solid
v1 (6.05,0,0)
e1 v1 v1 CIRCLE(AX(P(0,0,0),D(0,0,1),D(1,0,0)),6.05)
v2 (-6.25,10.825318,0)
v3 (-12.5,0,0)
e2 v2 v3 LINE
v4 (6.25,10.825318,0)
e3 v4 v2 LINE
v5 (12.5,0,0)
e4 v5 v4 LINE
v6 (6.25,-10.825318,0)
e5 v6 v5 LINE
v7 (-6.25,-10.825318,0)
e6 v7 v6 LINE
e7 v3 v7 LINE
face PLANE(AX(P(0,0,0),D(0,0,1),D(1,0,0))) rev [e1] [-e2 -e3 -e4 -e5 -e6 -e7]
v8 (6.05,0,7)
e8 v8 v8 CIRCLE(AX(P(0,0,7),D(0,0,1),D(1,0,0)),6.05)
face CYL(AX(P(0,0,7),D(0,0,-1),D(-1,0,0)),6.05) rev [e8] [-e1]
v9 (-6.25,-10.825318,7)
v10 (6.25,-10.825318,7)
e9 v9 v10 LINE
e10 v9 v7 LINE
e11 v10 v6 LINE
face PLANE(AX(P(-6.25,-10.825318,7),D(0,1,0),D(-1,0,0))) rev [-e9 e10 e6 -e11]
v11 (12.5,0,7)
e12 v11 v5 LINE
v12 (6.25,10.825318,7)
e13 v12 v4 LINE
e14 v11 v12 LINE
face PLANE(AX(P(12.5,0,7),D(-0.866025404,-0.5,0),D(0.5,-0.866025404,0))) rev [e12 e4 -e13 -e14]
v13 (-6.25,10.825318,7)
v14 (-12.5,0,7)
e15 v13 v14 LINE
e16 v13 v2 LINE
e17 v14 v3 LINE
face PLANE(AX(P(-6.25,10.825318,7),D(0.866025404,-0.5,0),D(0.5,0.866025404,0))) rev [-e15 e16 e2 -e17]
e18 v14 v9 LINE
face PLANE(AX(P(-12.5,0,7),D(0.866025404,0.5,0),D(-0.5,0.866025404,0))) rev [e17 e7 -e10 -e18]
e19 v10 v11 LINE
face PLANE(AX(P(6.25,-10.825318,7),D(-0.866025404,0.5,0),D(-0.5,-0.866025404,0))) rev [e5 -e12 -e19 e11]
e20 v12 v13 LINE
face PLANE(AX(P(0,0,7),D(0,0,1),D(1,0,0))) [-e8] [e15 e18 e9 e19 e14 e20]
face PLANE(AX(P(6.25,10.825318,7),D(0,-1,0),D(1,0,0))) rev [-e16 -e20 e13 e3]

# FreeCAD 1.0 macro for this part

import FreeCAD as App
import Part
import Sketcher
from FreeCAD import Vector
Q = App.Units.Quantity


def add_polygon(sketch, points):
    """Adds a closed chain of lines whose ends are joined by coincident constraints."""
    first, n = sketch.GeometryCount, len(points)
    for a, b in zip(points, points[1:] + points[:1]):
        sketch.addGeometry(Part.LineSegment(App.Vector(*a, 0), App.Vector(*b, 0)), False)
    for i in range(n):
        sketch.addConstraint(Sketcher.Constraint("Coincident", first + i, 2, first + (i + 1) % n, 1))

doc = App.newDocument("Part")
body = doc.addObject("PartDesign::Body", "Body")

sketch1 = doc.addObject("Sketcher::SketchObject", "Sketch")
body.addObject(sketch1)
sketch1.AttachmentSupport = (doc.XY_Plane, [""])
sketch1.MapMode = "FlatFace"
add_polygon(sketch1, [(12, 0), (6, 11), (-6, 11), (-12, 0), (-6, -11), (6, -11)])
sketch1.addGeometry(Part.Circle(Vector(0, 0, 0), Vector(0, 0, 1), 6), False)
sketch1.addConstraint([
    Sketcher.Constraint("Horizontal", 1),
    Sketcher.Constraint("Horizontal", 4),
    Sketcher.Constraint("Coincident", 6, 3, -1, 1),
    Sketcher.Constraint("Symmetric", 0, 2, 3, 2, -1, 1),
    Sketcher.Constraint("Symmetric", 2, 2, 5, 2, -1, 1),
    Sketcher.Constraint("PointOnObject", 2, 2, -1),
    Sketcher.Constraint("Parallel", 2, 5),
    Sketcher.Constraint("Vertical", 1, 2, 3, 2),
    Sketcher.Constraint("Diameter", 6, 12.1),
    Sketcher.Constraint("Angle", 0, Q("120 deg")),
    Sketcher.Constraint("DistanceX", 1, 2, 1, 1, 12.5),
    Sketcher.Constraint("Distance", 0, 12.5),
])
pad1 = doc.addObject("PartDesign::Pad", "Pad")
body.addObject(pad1)
pad1.Profile = sketch1
pad1.Length = 7

doc.recompute()
